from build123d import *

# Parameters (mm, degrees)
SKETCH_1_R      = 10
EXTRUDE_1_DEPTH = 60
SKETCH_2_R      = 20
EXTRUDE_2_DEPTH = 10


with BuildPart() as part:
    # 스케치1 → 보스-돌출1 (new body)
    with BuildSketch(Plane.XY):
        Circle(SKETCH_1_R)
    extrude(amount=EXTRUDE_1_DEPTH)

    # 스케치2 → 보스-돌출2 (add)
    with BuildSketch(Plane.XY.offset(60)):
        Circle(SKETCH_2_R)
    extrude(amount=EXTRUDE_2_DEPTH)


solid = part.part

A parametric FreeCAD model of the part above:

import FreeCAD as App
import Part
import Sketcher

doc = App.newDocument("Part")
body = doc.addObject("PartDesign::Body", "Body")

# Sketch on XY plane
sketch1 = body.newObject("Sketcher::SketchObject", "Sketch")
sketch1.AttachmentSupport = (doc.getObject("XY_Plane"), [""])
sketch1.MapMode = "FlatFace"
sketch1.addGeometry(Part.Circle(App.Vector(0, 0, 0), App.Vector(0, 0, 1), 10), False)
sketch1.addConstraint([
    Sketcher.Constraint("Coincident", 0, 3, -1, 1),
    Sketcher.Constraint("Diameter", 0, 20.0),
])
pad1 = body.newObject("PartDesign::Pad", "Pad")
pad1.Profile = sketch1
pad1.Length = 60

# Sketch on XY plane
sketch2 = body.newObject("Sketcher::SketchObject", "Sketch001")
sketch2.AttachmentSupport = (doc.getObject("XY_Plane"), [""])
sketch2.MapMode = "FlatFace"
sketch2.AttachmentOffset = App.Placement(App.Vector(0, 0, 60), App.Rotation())
sketch2.addGeometry(Part.Circle(App.Vector(0, 0, 0), App.Vector(0, 0, 1), 20), False)
sketch2.addConstraint([
    Sketcher.Constraint("Coincident", 0, 3, -1, 1),
    Sketcher.Constraint("Diameter", 0, 40.0),
])
pad2 = body.newObject("PartDesign::Pad", "Pad001")
pad2.Profile = sketch2
pad2.Length = 10

doc.recompute()
